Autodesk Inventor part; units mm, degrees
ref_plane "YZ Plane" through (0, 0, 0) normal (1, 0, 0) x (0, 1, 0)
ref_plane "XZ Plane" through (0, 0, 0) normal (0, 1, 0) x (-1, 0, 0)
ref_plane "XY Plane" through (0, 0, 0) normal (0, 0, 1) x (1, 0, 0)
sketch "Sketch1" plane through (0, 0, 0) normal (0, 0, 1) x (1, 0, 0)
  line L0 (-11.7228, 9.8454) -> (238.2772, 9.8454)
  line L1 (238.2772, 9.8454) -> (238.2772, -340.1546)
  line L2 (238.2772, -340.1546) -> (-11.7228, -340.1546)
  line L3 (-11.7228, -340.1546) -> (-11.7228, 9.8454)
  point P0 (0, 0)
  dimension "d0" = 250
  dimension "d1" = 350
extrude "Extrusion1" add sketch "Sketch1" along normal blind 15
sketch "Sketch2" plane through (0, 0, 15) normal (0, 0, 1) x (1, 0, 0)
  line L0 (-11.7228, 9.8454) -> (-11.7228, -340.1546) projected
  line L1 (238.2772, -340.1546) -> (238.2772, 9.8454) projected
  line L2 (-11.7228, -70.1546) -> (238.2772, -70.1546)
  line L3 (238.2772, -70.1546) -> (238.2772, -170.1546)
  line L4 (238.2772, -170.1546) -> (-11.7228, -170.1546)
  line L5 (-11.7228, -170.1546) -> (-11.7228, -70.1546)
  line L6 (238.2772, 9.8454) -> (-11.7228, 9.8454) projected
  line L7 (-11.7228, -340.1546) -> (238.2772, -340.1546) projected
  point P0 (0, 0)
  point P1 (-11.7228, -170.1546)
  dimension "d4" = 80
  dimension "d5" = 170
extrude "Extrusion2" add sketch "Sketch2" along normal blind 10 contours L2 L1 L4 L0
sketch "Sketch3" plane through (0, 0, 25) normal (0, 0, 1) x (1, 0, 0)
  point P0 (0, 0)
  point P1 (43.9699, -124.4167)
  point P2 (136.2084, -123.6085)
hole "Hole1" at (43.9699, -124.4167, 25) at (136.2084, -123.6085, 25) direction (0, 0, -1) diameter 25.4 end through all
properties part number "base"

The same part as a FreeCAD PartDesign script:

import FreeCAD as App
import Part
import Sketcher

V = App.Vector
Q = App.Units.Quantity

doc = App.newDocument("Part")
body = doc.addObject("PartDesign::Body", "Body")

# Sketch on XY plane
sketch1 = body.newObject("Sketcher::SketchObject", "Sketch")
sketch1.AttachmentSupport = (doc.getObject("XY_Plane"), [""])
sketch1.MapMode = "FlatFace"
sketch1.addGeometry(Part.LineSegment(V(238.2772, 9.8454, 0), V(-11.7228, 9.8454, 0)), False)
sketch1.addGeometry(Part.LineSegment(V(-11.7228, 9.8454, 0), V(-11.7228, -340.1546, 0)), False)
sketch1.addGeometry(Part.LineSegment(V(-11.7228, -340.1546, 0), V(238.2772, -340.1546, 0)), False)
sketch1.addGeometry(Part.LineSegment(V(238.2772, -340.1546, 0), V(238.2772, 9.8454, 0)), False)
sketch1.addConstraint(Sketcher.Constraint("Coincident", 0, 2, 1, 1))
sketch1.addConstraint(Sketcher.Constraint("Coincident", 1, 2, 2, 1))
sketch1.addConstraint(Sketcher.Constraint("Coincident", 2, 2, 3, 1))
sketch1.addConstraint(Sketcher.Constraint("Coincident", 3, 2, 0, 1))
sketch1.addConstraint(Sketcher.Constraint("Horizontal", 0))
sketch1.addConstraint(Sketcher.Constraint("Vertical", 1))
sketch1.addConstraint(Sketcher.Constraint("Horizontal", 2))
sketch1.addConstraint(Sketcher.Constraint("Vertical", 3))
sketch1.addConstraint(Sketcher.Constraint("DistanceX", 0, 2, 0, 1, Q("250 mm")))
sketch1.addConstraint(Sketcher.Constraint("DistanceY", 1, 2, 1, 1, Q("350 mm")))
sketch1.addConstraint(Sketcher.Constraint("DistanceX", 0, 2, -1, 1, Q("11.7228 mm")))
sketch1.addConstraint(Sketcher.Constraint("DistanceY", -1, 1, 0, 2, Q("9.8454 mm")))
pad1 = body.newObject("PartDesign::Pad", "Pad")
pad1.Profile = sketch1
pad1.Length = 15

# Sketch on XY plane
sketch2 = body.newObject("Sketcher::SketchObject", "Sketch001")
sketch2.AttachmentSupport = (doc.getObject("XY_Plane"), [""])
sketch2.MapMode = "FlatFace"
sketch2.AttachmentOffset = App.Placement(V(0, 0, 15), App.Rotation())
sketch2.addGeometry(Part.LineSegment(V(238.2772, -70.1546, 0), V(-11.7228, -70.1546, 0)), False)
sketch2.addGeometry(Part.LineSegment(V(-11.7228, -70.1546, 0), V(-11.7228, -170.1546, 0)), False)
sketch2.addGeometry(Part.LineSegment(V(-11.7228, -170.1546, 0), V(238.2772, -170.1546, 0)), False)
sketch2.addGeometry(Part.LineSegment(V(238.2772, -170.1546, 0), V(238.2772, -70.1546, 0)), False)
sketch2.addConstraint(Sketcher.Constraint("Coincident", 0, 2, 1, 1))
sketch2.addConstraint(Sketcher.Constraint("Coincident", 1, 2, 2, 1))
sketch2.addConstraint(Sketcher.Constraint("Coincident", 2, 2, 3, 1))
sketch2.addConstraint(Sketcher.Constraint("Coincident", 3, 2, 0, 1))
sketch2.addConstraint(Sketcher.Constraint("Horizontal", 0))
sketch2.addConstraint(Sketcher.Constraint("Vertical", 1))
sketch2.addConstraint(Sketcher.Constraint("Horizontal", 2))
sketch2.addConstraint(Sketcher.Constraint("Vertical", 3))
sketch2.addConstraint(Sketcher.Constraint("DistanceX", 0, 2, 0, 1, Q("250 mm")))
sketch2.addConstraint(Sketcher.Constraint("DistanceY", 1, 2, 1, 1, Q("100 mm")))
sketch2.addConstraint(Sketcher.Constraint("DistanceX", 0, 2, -1, 1, Q("11.7228 mm")))
sketch2.addConstraint(Sketcher.Constraint("DistanceY", 0, 2, -1, 1, Q("70.1546 mm")))
pad2 = body.newObject("PartDesign::Pad", "Pad001")
pad2.Profile = sketch2
pad2.Length = 10

# Sketch on XY plane
sketch3 = body.newObject("Sketcher::SketchObject", "Sketch002")
sketch3.AttachmentSupport = (doc.getObject("XY_Plane"), [""])
sketch3.MapMode = "FlatFace"
sketch3.AttachmentOffset = App.Placement(V(0, 0, 25), App.Rotation())
sketch3.addGeometry(Part.Circle(V(43.9699, -124.4167, 0), V(0, 0, 1), 12.7), False)
sketch3.addGeometry(Part.Circle(V(136.2084, -123.6085, 0), V(0, 0, 1), 12.7), False)
sketch3.addConstraint(Sketcher.Constraint("Equal", 0, 1))
sketch3.addConstraint(Sketcher.Constraint("Diameter", 0, Q("25.4 mm")))
sketch3.addConstraint(Sketcher.Constraint("DistanceX", -1, 1, 0, 3, Q("43.97 mm")))
sketch3.addConstraint(Sketcher.Constraint("DistanceY", 0, 3, -1, 1, Q("124.4167 mm")))
sketch3.addConstraint(Sketcher.Constraint("DistanceX", -1, 1, 1, 3, Q("136.2084 mm")))
sketch3.addConstraint(Sketcher.Constraint("DistanceY", 1, 3, -1, 1, Q("123.6085 mm")))
doc.recompute()
hole = body.newObject("PartDesign::Hole", "Hole")
hole.Profile = sketch3
hole.ThreadType = "None"
hole.Diameter = 25.4
hole.DepthType = "ThroughAll"

doc.recompute()
